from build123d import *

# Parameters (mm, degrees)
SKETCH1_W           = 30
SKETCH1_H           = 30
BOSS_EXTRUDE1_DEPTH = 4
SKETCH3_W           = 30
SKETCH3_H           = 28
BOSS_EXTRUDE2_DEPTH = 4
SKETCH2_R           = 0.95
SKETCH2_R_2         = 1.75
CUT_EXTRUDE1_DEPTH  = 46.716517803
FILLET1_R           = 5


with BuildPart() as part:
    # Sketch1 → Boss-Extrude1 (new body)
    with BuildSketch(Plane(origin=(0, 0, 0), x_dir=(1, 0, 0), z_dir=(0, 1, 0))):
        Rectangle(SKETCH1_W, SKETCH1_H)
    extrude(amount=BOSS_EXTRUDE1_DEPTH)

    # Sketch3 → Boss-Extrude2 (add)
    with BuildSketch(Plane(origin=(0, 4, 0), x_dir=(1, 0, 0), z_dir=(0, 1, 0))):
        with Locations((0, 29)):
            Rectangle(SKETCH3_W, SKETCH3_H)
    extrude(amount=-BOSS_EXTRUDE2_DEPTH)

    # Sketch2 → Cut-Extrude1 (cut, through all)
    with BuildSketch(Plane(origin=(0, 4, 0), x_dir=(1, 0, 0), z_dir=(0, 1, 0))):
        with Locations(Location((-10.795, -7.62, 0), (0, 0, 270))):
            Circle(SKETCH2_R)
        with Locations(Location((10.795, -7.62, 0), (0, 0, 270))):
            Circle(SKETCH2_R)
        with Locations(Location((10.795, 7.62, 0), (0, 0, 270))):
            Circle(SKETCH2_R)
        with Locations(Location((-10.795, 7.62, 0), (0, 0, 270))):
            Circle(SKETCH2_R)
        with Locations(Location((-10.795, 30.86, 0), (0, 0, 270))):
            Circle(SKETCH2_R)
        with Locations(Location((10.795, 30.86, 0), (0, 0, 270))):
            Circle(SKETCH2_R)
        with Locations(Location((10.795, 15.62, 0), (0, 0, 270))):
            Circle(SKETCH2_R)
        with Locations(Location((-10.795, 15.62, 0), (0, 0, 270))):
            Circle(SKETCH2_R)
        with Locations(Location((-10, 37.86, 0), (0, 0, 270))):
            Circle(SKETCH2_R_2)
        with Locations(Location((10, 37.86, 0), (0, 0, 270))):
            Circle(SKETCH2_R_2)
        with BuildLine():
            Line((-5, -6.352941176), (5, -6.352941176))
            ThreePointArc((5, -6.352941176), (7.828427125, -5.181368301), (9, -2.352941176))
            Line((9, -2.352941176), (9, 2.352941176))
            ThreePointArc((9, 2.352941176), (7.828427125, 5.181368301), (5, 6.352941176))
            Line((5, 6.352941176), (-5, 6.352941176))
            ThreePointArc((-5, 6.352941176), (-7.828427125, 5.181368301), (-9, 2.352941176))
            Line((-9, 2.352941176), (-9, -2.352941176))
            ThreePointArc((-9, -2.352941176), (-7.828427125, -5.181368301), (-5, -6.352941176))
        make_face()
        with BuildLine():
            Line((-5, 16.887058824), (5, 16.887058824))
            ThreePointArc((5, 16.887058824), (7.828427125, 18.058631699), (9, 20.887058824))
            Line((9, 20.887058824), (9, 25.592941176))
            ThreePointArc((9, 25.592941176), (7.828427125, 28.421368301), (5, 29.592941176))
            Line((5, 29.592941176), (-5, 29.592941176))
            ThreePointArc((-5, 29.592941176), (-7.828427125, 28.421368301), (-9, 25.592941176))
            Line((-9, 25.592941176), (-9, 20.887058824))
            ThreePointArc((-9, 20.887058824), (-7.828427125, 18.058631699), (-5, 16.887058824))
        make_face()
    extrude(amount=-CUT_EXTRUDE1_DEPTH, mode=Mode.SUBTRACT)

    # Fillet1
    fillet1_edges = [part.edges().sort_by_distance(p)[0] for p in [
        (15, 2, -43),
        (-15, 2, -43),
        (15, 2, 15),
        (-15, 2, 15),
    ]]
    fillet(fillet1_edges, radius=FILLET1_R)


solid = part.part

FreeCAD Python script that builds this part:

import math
import FreeCAD as App
import Part
import Sketcher

V = App.Vector


def edges_at(feature, points):
    """Names of the edges that pass closest to the given points."""
    edges = feature.Shape.Edges
    near = lambda p: min(range(len(edges)), key=lambda i: edges[i].distToShape(Part.Vertex(*p))[0])
    return sorted({f"Edge{near(p) + 1}" for p in points})

doc = App.newDocument("Part")
body = doc.addObject("PartDesign::Body", "Body")

# Sketch on XZ plane
sketch1 = body.newObject("Sketcher::SketchObject", "Sketch")
sketch1.AttachmentSupport = (doc.getObject("XZ_Plane"), [""])
sketch1.MapMode = "FlatFace"
sketch1.addGeometry(Part.LineSegment(V(-15, -15, 0), V(-15, 15, 0)), False)
sketch1.addGeometry(Part.LineSegment(V(-15, 15, 0), V(15, 15, 0)), False)
sketch1.addGeometry(Part.LineSegment(V(15, 15, 0), V(15, -15, 0)), False)
sketch1.addGeometry(Part.LineSegment(V(15, -15, 0), V(-15, -15, 0)), False)
sketch1.addConstraint(Sketcher.Constraint("Coincident", 0, 2, 1, 1))
sketch1.addConstraint(Sketcher.Constraint("Coincident", 1, 2, 2, 1))
sketch1.addConstraint(Sketcher.Constraint("Coincident", 2, 2, 3, 1))
sketch1.addConstraint(Sketcher.Constraint("Coincident", 3, 2, 0, 1))
sketch1.addConstraint(Sketcher.Constraint("Vertical", 0))
sketch1.addConstraint(Sketcher.Constraint("Horizontal", 1))
sketch1.addConstraint(Sketcher.Constraint("Vertical", 2))
sketch1.addConstraint(Sketcher.Constraint("Horizontal", 3))
sketch1.addConstraint(Sketcher.Constraint("Symmetric", 0, 2, 2, 2, -1, 1))
sketch1.addConstraint(Sketcher.Constraint("Equal", 3, 0))
sketch1.addConstraint(Sketcher.Constraint("DistanceX", 1, 1, 1, 2, 30.0))
pad1 = body.newObject("PartDesign::Pad", "Pad")
pad1.Profile = sketch1
pad1.Length = 4
pad1.Reversed = True

# Sketch on XZ plane
sketch2 = body.newObject("Sketcher::SketchObject", "Sketch001")
sketch2.AttachmentSupport = (doc.getObject("XZ_Plane"), [""])
sketch2.MapMode = "FlatFace"
sketch2.AttachmentOffset = App.Placement(V(0, 0, -4), App.Rotation())
sketch2.addGeometry(Part.LineSegment(V(-15, -43, 0), V(-15, -15, 0)), False)
sketch2.addGeometry(Part.LineSegment(V(-15, -15, 0), V(15, -15, 0)), False)
sketch2.addGeometry(Part.LineSegment(V(15, -15, 0), V(15, -43, 0)), False)
sketch2.addGeometry(Part.LineSegment(V(15, -43, 0), V(-15, -43, 0)), False)
sketch2.addConstraint(Sketcher.Constraint("Coincident", 0, 2, 1, 1))
sketch2.addConstraint(Sketcher.Constraint("Coincident", 1, 2, 2, 1))
sketch2.addConstraint(Sketcher.Constraint("Coincident", 2, 2, 3, 1))
sketch2.addConstraint(Sketcher.Constraint("Coincident", 3, 2, 0, 1))
sketch2.addConstraint(Sketcher.Constraint("Vertical", 0))
sketch2.addConstraint(Sketcher.Constraint("Horizontal", 1))
sketch2.addConstraint(Sketcher.Constraint("Vertical", 2))
sketch2.addConstraint(Sketcher.Constraint("Horizontal", 3))
sketch2.addConstraint(Sketcher.Constraint("DistanceX", 1, 1, 1, 2, 30.0))
sketch2.addConstraint(Sketcher.Constraint("DistanceY", 0, 1, 0, 2, 28.0))
sketch2.addConstraint(Sketcher.Constraint("DistanceX", 0, 2, -1, 1, 15.0))
sketch2.addConstraint(Sketcher.Constraint("DistanceY", 0, 2, -1, 1, 15.0))
pad2 = body.newObject("PartDesign::Pad", "Pad001")
pad2.Profile = sketch2
pad2.Length = 4

# Sketch on XZ plane
sketch3 = body.newObject("Sketcher::SketchObject", "Sketch002")
sketch3.AttachmentSupport = (doc.getObject("XZ_Plane"), [""])
sketch3.MapMode = "FlatFace"
sketch3.AttachmentOffset = App.Placement(V(0, 0, -4), App.Rotation())
sketch3.addGeometry(Part.Circle(V(-10.8, 7.6, 0), V(0, 0, 1), 0.9), False)
sketch3.addGeometry(Part.Circle(V(10.8, 7.6, 0), V(0, 0, 1), 0.9), False)
sketch3.addGeometry(Part.Circle(V(10.8, -7.6, 0), V(0, 0, 1), 0.9), False)
sketch3.addGeometry(Part.Circle(V(-10.8, -7.6, 0), V(0, 0, 1), 0.9), False)
sketch3.addGeometry(Part.Circle(V(-10.8, -30.9, 0), V(0, 0, 1), 0.9), False)
sketch3.addGeometry(Part.Circle(V(10.8, -30.9, 0), V(0, 0, 1), 0.9), False)
sketch3.addGeometry(Part.Circle(V(10.8, -15.6, 0), V(0, 0, 1), 0.9), False)
sketch3.addGeometry(Part.Circle(V(-10.8, -15.6, 0), V(0, 0, 1), 0.9), False)
sketch3.addGeometry(Part.Circle(V(-10, -37.9, 0), V(0, 0, 1), 1.8), False)
sketch3.addGeometry(Part.Circle(V(10, -37.9, 0), V(0, 0, 1), 1.8), False)
sketch3.addGeometry(Part.LineSegment(V(-5, 6.4, 0), V(5, 6.4, 0)), False)
sketch3.addGeometry(Part.ArcOfCircle(Part.Circle(V(5, 2.4, 0), V(0, 0, 1), 4), math.radians(0), math.radians(90)), False)
sketch3.addGeometry(Part.LineSegment(V(9, 2.4, 0), V(9, -2.4, 0)), False)
sketch3.addGeometry(Part.ArcOfCircle(Part.Circle(V(5, -2.4, 0), V(0, 0, 1), 4), math.radians(-90), math.radians(0)), False)
sketch3.addGeometry(Part.LineSegment(V(5, -6.4, 0), V(-5, -6.4, 0)), False)
sketch3.addGeometry(Part.ArcOfCircle(Part.Circle(V(-5, -2.4, 0), V(0, 0, 1), 4), math.radians(180), math.radians(270)), False)
sketch3.addGeometry(Part.LineSegment(V(-9, -2.4, 0), V(-9, 2.4, 0)), False)
sketch3.addGeometry(Part.ArcOfCircle(Part.Circle(V(-5, 2.4, 0), V(0, 0, 1), 4), math.radians(90), math.radians(180)), False)
sketch3.addGeometry(Part.LineSegment(V(-5, -16.9, 0), V(5, -16.9, 0)), False)
sketch3.addGeometry(Part.ArcOfCircle(Part.Circle(V(5, -20.9, 0), V(0, 0, 1), 4), math.radians(0), math.radians(90)), False)
sketch3.addGeometry(Part.LineSegment(V(9, -20.9, 0), V(9, -25.6, 0)), False)
sketch3.addGeometry(Part.ArcOfCircle(Part.Circle(V(5, -25.6, 0), V(0, 0, 1), 4), math.radians(-90), math.radians(0)), False)
sketch3.addGeometry(Part.LineSegment(V(5, -29.6, 0), V(-5, -29.6, 0)), False)
sketch3.addGeometry(Part.ArcOfCircle(Part.Circle(V(-5, -25.6, 0), V(0, 0, 1), 4), math.radians(180), math.radians(270)), False)
sketch3.addGeometry(Part.LineSegment(V(-9, -25.6, 0), V(-9, -20.9, 0)), False)
sketch3.addGeometry(Part.ArcOfCircle(Part.Circle(V(-5, -20.9, 0), V(0, 0, 1), 4), math.radians(90), math.radians(180)), False)
sketch3.addConstraint(Sketcher.Constraint("Tangent", 10, 2, 11, 2))
sketch3.addConstraint(Sketcher.Constraint("Tangent", 11, 1, 12, 1))
sketch3.addConstraint(Sketcher.Constraint("Tangent", 12, 2, 13, 2))
sketch3.addConstraint(Sketcher.Constraint("Tangent", 13, 1, 14, 1))
sketch3.addConstraint(Sketcher.Constraint("Tangent", 14, 2, 15, 2))
sketch3.addConstraint(Sketcher.Constraint("Tangent", 15, 1, 16, 1))
sketch3.addConstraint(Sketcher.Constraint("Tangent", 16, 2, 17, 2))
sketch3.addConstraint(Sketcher.Constraint("Tangent", 17, 1, 10, 1))
sketch3.addConstraint(Sketcher.Constraint("Tangent", 18, 2, 19, 2))
sketch3.addConstraint(Sketcher.Constraint("Tangent", 19, 1, 20, 1))
sketch3.addConstraint(Sketcher.Constraint("Tangent", 20, 2, 21, 2))
sketch3.addConstraint(Sketcher.Constraint("Tangent", 21, 1, 22, 1))
sketch3.addConstraint(Sketcher.Constraint("Tangent", 22, 2, 23, 2))
sketch3.addConstraint(Sketcher.Constraint("Tangent", 23, 1, 24, 1))
sketch3.addConstraint(Sketcher.Constraint("Tangent", 24, 2, 25, 2))
sketch3.addConstraint(Sketcher.Constraint("Tangent", 25, 1, 18, 1))
sketch3.addConstraint(Sketcher.Constraint("Horizontal", 10))
sketch3.addConstraint(Sketcher.Constraint("Vertical", 12))
sketch3.addConstraint(Sketcher.Constraint("Horizontal", 14))
sketch3.addConstraint(Sketcher.Constraint("Vertical", 16))
sketch3.addConstraint(Sketcher.Constraint("Horizontal", 18))
sketch3.addConstraint(Sketcher.Constraint("Vertical", 20))
sketch3.addConstraint(Sketcher.Constraint("Horizontal", 22))
sketch3.addConstraint(Sketcher.Constraint("Vertical", 24))
sketch3.addConstraint(Sketcher.Constraint("Equal", 0, 1))
sketch3.addConstraint(Sketcher.Constraint("Equal", 1, 2))
sketch3.addConstraint(Sketcher.Constraint("Equal", 2, 3))
sketch3.addConstraint(Sketcher.Constraint("Equal", 3, 4))
sketch3.addConstraint(Sketcher.Constraint("Equal", 4, 5))
sketch3.addConstraint(Sketcher.Constraint("Equal", 5, 6))
sketch3.addConstraint(Sketcher.Constraint("Equal", 6, 7))
sketch3.addConstraint(Sketcher.Constraint("Equal", 8, 9))
sketch3.addConstraint(Sketcher.Constraint("Equal", 11, 13))
sketch3.addConstraint(Sketcher.Constraint("Equal", 13, 15))
sketch3.addConstraint(Sketcher.Constraint("Equal", 15, 17))
sketch3.addConstraint(Sketcher.Constraint("Equal", 17, 19))
sketch3.addConstraint(Sketcher.Constraint("Equal", 19, 21))
sketch3.addConstraint(Sketcher.Constraint("Equal", 21, 23))
sketch3.addConstraint(Sketcher.Constraint("Equal", 23, 25))
sketch3.addConstraint(Sketcher.Constraint("Symmetric", 0, 3, 2, 3, -1, 1))
sketch3.addConstraint(Sketcher.Constraint("Symmetric", 1, 3, 3, 3, -1, 1))
sketch3.addConstraint(Sketcher.Constraint("Symmetric", 11, 3, 15, 3, -1, 1))
sketch3.addConstraint(Sketcher.Constraint("Symmetric", 0, 3, 1, 3, -2))
sketch3.addConstraint(Sketcher.Constraint("Symmetric", 4, 3, 5, 3, -2))
sketch3.addConstraint(Sketcher.Constraint("Symmetric", 6, 3, 7, 3, -2))
sketch3.addConstraint(Sketcher.Constraint("Symmetric", 8, 3, 9, 3, -2))
sketch3.addConstraint(Sketcher.Constraint("Vertical", 3, 3, 4, 3))
sketch3.addConstraint(Sketcher.Constraint("Vertical", 5, 3, 6, 3))
sketch3.addConstraint(Sketcher.Constraint("Vertical", 13, 3, 19, 3))
sketch3.addConstraint(Sketcher.Constraint("Vertical", 17, 3, 23, 3))
sketch3.addConstraint(Sketcher.Constraint("Equal", 16, 20))
sketch3.addConstraint(Sketcher.Constraint("Radius", 11, 4.0))
sketch3.addConstraint(Sketcher.Constraint("Diameter", 0, 1.9))
sketch3.addConstraint(Sketcher.Constraint("Diameter", 8, 3.5))
sketch3.addConstraint(Sketcher.Constraint("DistanceX", 10, 1, 10, 2, 10.0))
sketch3.addConstraint(Sketcher.Constraint("DistanceX", 8, 3, -1, 1, 10.0))
sketch3.addConstraint(Sketcher.Constraint("DistanceY", 6, 3, 2, 3, 8.0))
sketch3.addConstraint(Sketcher.Constraint("DistanceY", 8, 3, 4, 3, 7.0))
sketch3.addConstraint(Sketcher.Constraint("DistanceY", -1, 1, 0, 3, 7.62))
sketch3.addConstraint(Sketcher.Constraint("DistanceY", 4, 3, -1, 1, 30.86))
sketch3.addConstraint(Sketcher.Constraint("DistanceX", 0, 3, 1, 3, 21.59))
sketch3.addConstraint(Sketcher.Constraint("DistanceY", 12, 2, 12, 1, 4.705882))
sketch3.addConstraint(Sketcher.Constraint("DistanceY", 19, 3, -1, 1, 20.887059))
pocket1 = body.newObject("PartDesign::Pocket", "Pocket")
pocket1.Profile = sketch3
pocket1.Type = "ThroughAll"
pocket1.Reversed = True
doc.recompute()

fillet = body.newObject("PartDesign::Fillet", "Fillet")
fillet.Base = (pocket1, edges_at(pocket1, [
    (15, 2, -43),
    (-15, 2, -43),
    (15, 2, 15),
    (-15, 2, 15),
]))
fillet.Radius = 5

doc.recompute()
